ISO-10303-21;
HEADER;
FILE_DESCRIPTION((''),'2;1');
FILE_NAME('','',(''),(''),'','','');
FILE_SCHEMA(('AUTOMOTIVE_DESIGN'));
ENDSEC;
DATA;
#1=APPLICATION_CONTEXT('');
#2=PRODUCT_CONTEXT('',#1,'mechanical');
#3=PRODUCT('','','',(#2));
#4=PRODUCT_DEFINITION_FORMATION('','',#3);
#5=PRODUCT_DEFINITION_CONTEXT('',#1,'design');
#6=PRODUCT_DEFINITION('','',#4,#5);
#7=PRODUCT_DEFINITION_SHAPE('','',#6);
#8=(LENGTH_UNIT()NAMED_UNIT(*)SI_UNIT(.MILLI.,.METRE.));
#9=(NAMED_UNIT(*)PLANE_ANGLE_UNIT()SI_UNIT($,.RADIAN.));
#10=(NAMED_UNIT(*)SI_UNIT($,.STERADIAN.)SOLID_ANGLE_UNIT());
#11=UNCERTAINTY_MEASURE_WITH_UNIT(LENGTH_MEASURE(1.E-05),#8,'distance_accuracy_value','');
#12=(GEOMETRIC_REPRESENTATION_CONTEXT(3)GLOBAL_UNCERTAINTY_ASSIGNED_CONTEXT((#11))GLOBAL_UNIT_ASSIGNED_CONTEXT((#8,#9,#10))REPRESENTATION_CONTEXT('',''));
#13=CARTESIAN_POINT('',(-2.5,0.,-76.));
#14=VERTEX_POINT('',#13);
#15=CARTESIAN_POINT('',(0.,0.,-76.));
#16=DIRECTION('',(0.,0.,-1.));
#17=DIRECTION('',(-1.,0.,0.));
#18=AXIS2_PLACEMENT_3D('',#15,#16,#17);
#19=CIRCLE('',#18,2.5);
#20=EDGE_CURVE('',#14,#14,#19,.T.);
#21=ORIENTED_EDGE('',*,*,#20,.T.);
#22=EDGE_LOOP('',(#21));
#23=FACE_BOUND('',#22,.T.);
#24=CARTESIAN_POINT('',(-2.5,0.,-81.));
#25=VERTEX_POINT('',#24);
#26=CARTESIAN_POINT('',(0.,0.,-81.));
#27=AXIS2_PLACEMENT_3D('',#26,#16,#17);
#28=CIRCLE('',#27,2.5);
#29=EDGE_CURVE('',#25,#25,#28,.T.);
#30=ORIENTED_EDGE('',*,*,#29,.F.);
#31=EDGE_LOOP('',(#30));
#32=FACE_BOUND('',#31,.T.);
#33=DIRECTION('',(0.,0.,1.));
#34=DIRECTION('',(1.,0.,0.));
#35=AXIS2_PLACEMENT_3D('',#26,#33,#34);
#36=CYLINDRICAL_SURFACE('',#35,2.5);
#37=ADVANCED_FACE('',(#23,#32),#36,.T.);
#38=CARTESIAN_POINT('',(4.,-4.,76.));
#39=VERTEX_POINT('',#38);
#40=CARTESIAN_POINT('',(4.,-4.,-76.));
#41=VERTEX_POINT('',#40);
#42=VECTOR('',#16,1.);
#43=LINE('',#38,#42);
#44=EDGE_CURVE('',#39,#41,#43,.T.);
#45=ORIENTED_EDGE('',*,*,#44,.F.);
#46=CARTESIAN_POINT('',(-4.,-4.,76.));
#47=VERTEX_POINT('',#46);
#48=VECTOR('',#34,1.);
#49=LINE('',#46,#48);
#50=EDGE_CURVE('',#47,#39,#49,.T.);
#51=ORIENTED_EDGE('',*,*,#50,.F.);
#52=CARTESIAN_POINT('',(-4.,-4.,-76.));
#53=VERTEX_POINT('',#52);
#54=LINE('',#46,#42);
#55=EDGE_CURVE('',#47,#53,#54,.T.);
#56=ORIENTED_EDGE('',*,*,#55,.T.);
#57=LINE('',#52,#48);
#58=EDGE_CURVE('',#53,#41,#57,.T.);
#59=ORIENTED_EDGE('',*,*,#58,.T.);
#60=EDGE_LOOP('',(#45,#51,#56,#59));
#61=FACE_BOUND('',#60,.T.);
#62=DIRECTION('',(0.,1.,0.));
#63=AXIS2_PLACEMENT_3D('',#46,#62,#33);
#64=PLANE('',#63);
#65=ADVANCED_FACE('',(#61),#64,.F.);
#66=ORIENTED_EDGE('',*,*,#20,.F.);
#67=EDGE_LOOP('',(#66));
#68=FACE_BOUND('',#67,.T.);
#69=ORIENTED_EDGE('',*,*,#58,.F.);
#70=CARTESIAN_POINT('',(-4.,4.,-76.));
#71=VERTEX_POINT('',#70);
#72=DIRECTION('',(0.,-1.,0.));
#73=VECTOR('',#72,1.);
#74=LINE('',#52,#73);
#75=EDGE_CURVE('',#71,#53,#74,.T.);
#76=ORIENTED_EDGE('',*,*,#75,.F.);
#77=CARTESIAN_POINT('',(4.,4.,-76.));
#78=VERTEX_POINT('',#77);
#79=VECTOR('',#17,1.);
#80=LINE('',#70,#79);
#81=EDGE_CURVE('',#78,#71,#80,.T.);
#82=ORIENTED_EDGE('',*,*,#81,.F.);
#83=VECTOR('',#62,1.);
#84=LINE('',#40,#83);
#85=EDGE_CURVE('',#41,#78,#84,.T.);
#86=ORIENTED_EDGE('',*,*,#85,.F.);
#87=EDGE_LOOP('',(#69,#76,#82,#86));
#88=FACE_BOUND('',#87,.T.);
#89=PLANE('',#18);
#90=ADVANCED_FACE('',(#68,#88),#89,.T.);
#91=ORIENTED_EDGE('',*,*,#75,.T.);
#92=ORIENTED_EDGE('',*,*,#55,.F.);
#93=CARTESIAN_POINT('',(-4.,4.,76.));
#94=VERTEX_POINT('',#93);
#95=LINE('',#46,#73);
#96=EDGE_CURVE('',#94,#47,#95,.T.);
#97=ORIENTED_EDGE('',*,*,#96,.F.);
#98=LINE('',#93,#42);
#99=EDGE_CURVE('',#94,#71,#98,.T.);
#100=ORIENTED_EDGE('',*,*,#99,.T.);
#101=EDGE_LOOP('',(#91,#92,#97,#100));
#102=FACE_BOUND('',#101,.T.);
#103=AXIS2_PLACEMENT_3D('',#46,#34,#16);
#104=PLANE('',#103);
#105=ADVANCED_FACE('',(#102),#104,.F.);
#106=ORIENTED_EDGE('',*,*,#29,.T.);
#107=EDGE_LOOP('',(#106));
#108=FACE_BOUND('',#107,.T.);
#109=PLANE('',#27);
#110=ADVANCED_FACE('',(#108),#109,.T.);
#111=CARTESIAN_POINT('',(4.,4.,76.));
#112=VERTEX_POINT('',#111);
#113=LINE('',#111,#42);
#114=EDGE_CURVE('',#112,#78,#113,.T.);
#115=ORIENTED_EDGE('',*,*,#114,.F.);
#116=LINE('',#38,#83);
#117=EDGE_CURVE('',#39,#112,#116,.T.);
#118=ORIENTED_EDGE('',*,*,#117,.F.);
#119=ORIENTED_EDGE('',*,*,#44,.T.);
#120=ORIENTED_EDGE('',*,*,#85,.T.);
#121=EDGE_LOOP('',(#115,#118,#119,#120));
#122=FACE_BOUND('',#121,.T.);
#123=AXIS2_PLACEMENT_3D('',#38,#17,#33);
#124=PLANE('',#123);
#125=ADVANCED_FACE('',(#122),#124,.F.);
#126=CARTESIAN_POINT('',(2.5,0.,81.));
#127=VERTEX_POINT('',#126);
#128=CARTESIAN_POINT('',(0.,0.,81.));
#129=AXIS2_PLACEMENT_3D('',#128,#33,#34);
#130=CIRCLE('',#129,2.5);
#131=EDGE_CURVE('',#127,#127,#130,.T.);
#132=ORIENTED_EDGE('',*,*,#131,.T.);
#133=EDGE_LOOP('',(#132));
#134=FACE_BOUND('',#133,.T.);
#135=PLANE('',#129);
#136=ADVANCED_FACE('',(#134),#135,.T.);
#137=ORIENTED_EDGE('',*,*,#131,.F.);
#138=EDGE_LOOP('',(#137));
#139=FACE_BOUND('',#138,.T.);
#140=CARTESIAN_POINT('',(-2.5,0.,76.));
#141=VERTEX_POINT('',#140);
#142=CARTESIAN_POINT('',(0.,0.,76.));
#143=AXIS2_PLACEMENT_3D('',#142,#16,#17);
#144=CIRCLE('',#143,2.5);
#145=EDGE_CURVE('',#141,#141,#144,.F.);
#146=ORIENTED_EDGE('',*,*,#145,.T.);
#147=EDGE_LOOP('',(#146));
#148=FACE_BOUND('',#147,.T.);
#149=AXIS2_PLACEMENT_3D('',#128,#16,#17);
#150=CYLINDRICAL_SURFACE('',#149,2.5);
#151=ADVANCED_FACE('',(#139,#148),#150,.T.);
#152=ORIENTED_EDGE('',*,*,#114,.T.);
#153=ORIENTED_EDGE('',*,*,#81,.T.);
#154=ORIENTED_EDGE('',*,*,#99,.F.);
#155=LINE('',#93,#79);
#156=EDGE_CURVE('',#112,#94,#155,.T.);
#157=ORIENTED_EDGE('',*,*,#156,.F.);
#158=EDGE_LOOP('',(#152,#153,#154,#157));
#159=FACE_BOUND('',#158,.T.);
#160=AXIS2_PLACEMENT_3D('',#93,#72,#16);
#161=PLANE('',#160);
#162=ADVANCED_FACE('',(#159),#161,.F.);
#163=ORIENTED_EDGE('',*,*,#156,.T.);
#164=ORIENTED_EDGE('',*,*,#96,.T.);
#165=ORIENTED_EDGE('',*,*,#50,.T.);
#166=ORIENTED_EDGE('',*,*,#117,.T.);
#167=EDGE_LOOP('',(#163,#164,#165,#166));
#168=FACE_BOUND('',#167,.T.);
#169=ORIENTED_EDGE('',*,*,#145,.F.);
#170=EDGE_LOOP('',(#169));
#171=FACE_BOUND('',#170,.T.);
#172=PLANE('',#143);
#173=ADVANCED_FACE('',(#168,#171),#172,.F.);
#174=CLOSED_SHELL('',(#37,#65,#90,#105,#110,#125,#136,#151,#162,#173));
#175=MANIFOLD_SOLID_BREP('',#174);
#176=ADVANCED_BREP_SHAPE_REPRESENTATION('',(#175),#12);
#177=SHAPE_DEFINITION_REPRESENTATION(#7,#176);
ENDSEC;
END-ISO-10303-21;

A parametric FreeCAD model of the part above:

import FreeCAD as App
import Part
import Sketcher
from FreeCAD import Vector

doc = App.newDocument("Part")
body = doc.addObject("PartDesign::Body", "Body")

# Sketch on XY plane
sketch1 = doc.addObject("Sketcher::SketchObject", "Sketch")
body.addObject(sketch1)
sketch1.AttachmentSupport = (doc.XY_Plane, [""])
sketch1.MapMode = "FlatFace"
sketch1.addGeometry(Part.LineSegment(Vector(-4, 4, 0), Vector(-4, -4, 0)), False)
sketch1.addGeometry(Part.LineSegment(Vector(-4, -4, 0), Vector(4, -4, 0)), False)
sketch1.addGeometry(Part.LineSegment(Vector(4, -4, 0), Vector(4, 4, 0)), False)
sketch1.addGeometry(Part.LineSegment(Vector(4, 4, 0), Vector(-4, 4, 0)), False)
sketch1.addConstraint(Sketcher.Constraint("Coincident", 0, 2, 1, 1))
sketch1.addConstraint(Sketcher.Constraint("Coincident", 1, 2, 2, 1))
sketch1.addConstraint(Sketcher.Constraint("Coincident", 2, 2, 3, 1))
sketch1.addConstraint(Sketcher.Constraint("Coincident", 3, 2, 0, 1))
sketch1.addConstraint(Sketcher.Constraint("Vertical", 0))
sketch1.addConstraint(Sketcher.Constraint("Horizontal", 1))
sketch1.addConstraint(Sketcher.Constraint("Vertical", 2))
sketch1.addConstraint(Sketcher.Constraint("Horizontal", 3))
sketch1.addConstraint(Sketcher.Constraint("Symmetric", 0, 2, 2, 2, -1, 1))
sketch1.addConstraint(Sketcher.Constraint("Equal", 3, 0))
sketch1.addConstraint(Sketcher.Constraint("DistanceX", 1, 1, 1, 2, 8.0))
pad1 = doc.addObject("PartDesign::Pad", "Pad")
body.addObject(pad1)
pad1.Profile = sketch1
pad1.Length = 152
pad1.Midplane = True

# Sketch on XY plane
sketch2 = doc.addObject("Sketcher::SketchObject", "Sketch001")
body.addObject(sketch2)
sketch2.AttachmentSupport = (doc.XY_Plane, [""])
sketch2.MapMode = "FlatFace"
sketch2.AttachmentOffset = App.Placement(Vector(0, 0, 76), App.Rotation())
sketch2.addGeometry(Part.Circle(Vector(0, 0, 0), Vector(0, 0, 1), 2.5), False)
sketch2.addConstraint(Sketcher.Constraint("Coincident", 0, 3, -1, 1))
sketch2.addConstraint(Sketcher.Constraint("Diameter", 0, 5.0))
pad2 = doc.addObject("PartDesign::Pad", "Pad001")
body.addObject(pad2)
pad2.Profile = sketch2
pad2.Length = 5

# Sketch on XY plane
sketch3 = doc.addObject("Sketcher::SketchObject", "Sketch002")
body.addObject(sketch3)
sketch3.AttachmentSupport = (doc.XY_Plane, [""])
sketch3.MapMode = "FlatFace"
sketch3.AttachmentOffset = App.Placement(Vector(0, 0, -81), App.Rotation())
sketch3.addGeometry(Part.Circle(Vector(0, 0, 0), Vector(0, 0, 1), 2.5), False)
sketch3.addConstraint(Sketcher.Constraint("Coincident", 0, 3, -1, 1))
sketch3.addConstraint(Sketcher.Constraint("Diameter", 0, 5.0))
pad3 = doc.addObject("PartDesign::Pad", "Pad002")
body.addObject(pad3)
pad3.Profile = sketch3
pad3.Length = 5

doc.recompute()
